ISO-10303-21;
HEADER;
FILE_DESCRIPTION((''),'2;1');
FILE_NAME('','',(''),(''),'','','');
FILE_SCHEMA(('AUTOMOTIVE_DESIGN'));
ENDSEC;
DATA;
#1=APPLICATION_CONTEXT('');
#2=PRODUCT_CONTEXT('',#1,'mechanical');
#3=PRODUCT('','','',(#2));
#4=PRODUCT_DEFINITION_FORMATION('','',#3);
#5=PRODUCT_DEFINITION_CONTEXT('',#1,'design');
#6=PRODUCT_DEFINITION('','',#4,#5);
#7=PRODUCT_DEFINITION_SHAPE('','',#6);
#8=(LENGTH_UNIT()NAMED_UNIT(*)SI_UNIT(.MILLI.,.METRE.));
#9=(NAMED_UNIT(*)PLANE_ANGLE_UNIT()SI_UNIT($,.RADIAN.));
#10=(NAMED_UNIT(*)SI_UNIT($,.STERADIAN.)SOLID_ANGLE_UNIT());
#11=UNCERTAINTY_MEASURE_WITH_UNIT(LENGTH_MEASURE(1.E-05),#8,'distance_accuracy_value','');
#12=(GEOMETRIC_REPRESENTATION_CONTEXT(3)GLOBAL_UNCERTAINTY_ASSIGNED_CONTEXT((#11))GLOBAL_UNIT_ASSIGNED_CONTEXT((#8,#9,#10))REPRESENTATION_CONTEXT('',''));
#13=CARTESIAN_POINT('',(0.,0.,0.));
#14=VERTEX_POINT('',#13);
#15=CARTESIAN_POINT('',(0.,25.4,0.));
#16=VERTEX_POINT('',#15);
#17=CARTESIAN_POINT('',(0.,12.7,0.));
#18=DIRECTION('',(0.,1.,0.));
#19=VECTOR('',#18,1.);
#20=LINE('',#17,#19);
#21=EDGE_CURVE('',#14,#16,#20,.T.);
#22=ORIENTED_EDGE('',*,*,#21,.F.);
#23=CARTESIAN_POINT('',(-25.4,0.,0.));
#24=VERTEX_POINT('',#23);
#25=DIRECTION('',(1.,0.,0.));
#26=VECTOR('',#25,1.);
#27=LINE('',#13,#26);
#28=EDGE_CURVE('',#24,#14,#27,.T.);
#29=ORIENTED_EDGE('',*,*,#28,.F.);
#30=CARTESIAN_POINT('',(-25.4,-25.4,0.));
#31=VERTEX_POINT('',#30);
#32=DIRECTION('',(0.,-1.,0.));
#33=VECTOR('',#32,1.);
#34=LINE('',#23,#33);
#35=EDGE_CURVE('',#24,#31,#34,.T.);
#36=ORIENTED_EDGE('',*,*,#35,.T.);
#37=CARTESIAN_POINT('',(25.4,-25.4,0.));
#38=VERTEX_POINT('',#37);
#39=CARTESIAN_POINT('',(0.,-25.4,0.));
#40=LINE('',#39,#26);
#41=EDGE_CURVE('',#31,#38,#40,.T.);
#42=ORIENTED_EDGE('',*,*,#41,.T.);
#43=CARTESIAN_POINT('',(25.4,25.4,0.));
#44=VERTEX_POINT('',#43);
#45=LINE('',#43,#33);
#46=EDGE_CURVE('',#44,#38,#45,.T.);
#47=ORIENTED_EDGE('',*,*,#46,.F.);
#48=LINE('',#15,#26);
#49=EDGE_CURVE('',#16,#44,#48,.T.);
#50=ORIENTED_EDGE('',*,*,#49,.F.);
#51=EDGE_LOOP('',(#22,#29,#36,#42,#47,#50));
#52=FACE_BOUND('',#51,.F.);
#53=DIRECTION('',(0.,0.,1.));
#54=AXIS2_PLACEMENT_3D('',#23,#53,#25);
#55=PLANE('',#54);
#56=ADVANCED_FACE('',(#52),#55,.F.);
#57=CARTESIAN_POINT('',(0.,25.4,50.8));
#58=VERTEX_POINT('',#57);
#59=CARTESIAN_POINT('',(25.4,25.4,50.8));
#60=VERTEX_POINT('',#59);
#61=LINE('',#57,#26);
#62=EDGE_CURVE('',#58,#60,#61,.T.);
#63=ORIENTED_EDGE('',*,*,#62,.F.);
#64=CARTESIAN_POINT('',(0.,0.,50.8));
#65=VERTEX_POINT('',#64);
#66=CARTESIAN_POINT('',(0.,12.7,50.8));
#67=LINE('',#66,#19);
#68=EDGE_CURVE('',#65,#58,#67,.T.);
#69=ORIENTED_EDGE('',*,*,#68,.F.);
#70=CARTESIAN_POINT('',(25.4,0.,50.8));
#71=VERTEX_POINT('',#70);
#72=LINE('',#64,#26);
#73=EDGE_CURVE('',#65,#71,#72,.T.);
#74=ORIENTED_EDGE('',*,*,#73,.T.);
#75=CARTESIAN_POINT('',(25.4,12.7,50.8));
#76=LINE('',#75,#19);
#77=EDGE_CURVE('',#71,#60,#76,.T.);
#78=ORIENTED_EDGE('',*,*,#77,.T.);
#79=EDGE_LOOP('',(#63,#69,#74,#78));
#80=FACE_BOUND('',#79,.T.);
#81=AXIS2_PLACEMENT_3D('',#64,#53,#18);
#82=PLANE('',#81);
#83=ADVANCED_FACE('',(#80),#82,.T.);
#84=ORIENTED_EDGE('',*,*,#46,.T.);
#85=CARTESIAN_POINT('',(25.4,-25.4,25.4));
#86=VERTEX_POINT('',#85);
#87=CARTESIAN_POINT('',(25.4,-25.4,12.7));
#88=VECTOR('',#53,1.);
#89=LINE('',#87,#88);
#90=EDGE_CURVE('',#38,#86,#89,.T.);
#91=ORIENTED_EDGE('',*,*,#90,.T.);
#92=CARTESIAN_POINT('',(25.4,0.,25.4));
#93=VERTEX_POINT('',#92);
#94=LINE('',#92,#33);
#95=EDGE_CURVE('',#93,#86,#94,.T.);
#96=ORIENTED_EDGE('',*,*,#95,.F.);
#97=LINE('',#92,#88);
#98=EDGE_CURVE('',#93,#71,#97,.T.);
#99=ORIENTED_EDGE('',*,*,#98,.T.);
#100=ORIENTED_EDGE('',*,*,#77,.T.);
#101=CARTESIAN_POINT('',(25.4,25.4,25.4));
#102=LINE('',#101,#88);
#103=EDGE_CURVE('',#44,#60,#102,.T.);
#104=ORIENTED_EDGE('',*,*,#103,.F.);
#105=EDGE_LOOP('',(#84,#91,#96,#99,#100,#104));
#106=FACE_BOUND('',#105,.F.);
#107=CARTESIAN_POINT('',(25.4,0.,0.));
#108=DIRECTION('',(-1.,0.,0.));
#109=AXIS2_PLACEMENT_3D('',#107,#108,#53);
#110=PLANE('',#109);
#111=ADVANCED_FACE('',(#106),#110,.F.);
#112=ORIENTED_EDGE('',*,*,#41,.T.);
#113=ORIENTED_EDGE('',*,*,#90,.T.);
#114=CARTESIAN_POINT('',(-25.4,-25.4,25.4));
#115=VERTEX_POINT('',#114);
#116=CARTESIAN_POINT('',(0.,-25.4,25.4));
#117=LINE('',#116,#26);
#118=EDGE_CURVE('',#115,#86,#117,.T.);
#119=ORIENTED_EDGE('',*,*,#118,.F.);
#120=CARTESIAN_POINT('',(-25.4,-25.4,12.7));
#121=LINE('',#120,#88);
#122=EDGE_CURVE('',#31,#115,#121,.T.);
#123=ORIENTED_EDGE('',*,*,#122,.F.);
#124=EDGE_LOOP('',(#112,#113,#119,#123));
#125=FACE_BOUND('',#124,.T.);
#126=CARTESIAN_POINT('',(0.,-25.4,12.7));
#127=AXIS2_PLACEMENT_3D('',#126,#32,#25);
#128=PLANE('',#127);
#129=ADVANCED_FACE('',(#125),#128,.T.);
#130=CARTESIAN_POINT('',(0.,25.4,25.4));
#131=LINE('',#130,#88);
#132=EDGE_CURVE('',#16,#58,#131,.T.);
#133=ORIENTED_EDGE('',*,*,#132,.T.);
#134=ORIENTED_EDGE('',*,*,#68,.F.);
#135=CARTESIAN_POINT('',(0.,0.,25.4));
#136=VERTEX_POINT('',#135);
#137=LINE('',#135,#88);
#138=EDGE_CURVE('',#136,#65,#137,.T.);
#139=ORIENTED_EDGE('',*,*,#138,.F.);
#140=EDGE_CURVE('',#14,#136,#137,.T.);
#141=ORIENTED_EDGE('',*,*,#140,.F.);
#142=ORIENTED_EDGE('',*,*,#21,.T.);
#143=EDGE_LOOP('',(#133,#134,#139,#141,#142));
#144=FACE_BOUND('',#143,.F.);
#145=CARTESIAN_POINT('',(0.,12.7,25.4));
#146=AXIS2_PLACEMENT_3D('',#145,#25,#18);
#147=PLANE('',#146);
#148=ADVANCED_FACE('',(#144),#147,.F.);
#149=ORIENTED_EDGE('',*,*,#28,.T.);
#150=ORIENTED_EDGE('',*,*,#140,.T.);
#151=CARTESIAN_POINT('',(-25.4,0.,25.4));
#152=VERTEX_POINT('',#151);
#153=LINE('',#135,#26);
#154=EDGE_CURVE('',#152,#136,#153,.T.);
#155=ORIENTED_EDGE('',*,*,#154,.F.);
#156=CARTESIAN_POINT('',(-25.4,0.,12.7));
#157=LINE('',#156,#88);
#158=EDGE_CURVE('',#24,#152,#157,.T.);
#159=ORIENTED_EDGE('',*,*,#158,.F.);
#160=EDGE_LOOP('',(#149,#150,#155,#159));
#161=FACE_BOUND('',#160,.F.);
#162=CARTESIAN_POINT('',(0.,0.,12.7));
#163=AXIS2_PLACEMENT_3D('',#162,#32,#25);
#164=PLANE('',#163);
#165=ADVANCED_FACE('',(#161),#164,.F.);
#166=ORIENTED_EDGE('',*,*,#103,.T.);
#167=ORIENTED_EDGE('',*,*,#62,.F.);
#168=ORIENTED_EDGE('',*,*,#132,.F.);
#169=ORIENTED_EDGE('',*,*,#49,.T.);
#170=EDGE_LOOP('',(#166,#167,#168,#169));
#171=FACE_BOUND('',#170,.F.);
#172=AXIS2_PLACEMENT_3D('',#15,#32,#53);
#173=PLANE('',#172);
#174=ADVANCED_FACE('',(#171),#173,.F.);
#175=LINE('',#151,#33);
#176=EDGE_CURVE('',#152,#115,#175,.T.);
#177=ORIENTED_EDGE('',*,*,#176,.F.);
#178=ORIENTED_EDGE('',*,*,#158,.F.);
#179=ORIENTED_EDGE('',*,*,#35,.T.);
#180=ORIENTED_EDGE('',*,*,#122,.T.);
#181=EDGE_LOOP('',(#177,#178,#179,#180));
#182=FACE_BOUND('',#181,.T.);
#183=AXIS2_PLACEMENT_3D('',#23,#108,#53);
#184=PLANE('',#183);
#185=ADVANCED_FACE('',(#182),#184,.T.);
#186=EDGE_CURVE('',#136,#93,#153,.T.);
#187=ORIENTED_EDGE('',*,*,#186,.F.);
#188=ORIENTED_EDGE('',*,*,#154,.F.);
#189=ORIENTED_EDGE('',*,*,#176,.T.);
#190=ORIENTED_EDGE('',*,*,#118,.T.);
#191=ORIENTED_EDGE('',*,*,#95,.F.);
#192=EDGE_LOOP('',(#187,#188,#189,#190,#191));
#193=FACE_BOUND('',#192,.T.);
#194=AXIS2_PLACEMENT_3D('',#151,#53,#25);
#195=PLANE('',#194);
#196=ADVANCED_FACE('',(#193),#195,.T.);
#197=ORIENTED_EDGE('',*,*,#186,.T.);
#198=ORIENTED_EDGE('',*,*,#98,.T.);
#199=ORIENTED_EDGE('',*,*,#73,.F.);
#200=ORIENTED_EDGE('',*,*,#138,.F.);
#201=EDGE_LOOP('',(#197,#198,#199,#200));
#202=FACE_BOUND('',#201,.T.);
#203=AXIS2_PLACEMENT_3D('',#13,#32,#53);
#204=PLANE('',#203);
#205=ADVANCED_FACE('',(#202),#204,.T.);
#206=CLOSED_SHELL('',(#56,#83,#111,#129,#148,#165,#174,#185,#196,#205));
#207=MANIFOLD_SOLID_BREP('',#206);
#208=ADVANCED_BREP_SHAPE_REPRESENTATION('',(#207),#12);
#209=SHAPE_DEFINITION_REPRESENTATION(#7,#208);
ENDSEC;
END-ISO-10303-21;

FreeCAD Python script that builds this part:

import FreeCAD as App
import Part
import Sketcher

V = App.Vector
Q = App.Units.Quantity


def add_polygon(sketch, points):
    """Adds a closed chain of lines whose ends are joined by coincident constraints."""
    first, n = sketch.GeometryCount, len(points)
    for a, b in zip(points, points[1:] + points[:1]):
        sketch.addGeometry(Part.LineSegment(App.Vector(*a, 0), App.Vector(*b, 0)), False)
    for i in range(n):
        sketch.addConstraint(Sketcher.Constraint("Coincident", first + i, 2, first + (i + 1) % n, 1))

doc = App.newDocument("Part")
body = doc.addObject("PartDesign::Body", "Body")

# Sketch on YZ plane
sketch1 = body.newObject("Sketcher::SketchObject", "Sketch")
sketch1.AttachmentSupport = (doc.getObject("YZ_Plane"), [""])
sketch1.MapMode = "FlatFace"
add_polygon(sketch1, [(0, 51), (0, 0), (25, 0), (25, 51)])  # lines 0-3
sketch1.addConstraint([
    Sketcher.Constraint("Vertical", 0),
    Sketcher.Constraint("Horizontal", 1),
    Sketcher.Constraint("Vertical", 2),
    Sketcher.Constraint("Horizontal", 3),
    Sketcher.Constraint("Coincident", 0, 2, -1, 1),
    Sketcher.Constraint("DistanceX", 1, 1, 1, 2, Q("1 in")),
    Sketcher.Constraint("DistanceY", 0, 2, 0, 1, Q("2 in")),
])
pad1 = body.newObject("PartDesign::Pad", "Pad")
pad1.Profile = sketch1
pad1.Length = Q("1 in")

# Sketch on XZ plane
sketch2 = body.newObject("Sketcher::SketchObject", "Sketch001")
sketch2.AttachmentSupport = (doc.getObject("XZ_Plane"), [""])
sketch2.MapMode = "FlatFace"
add_polygon(sketch2, [(-25, 25), (-25, 0), (25, 0), (25, 25)])  # lines 0-3
sketch2.addConstraint([
    Sketcher.Constraint("Vertical", 0),
    Sketcher.Constraint("Horizontal", 1),
    Sketcher.Constraint("Vertical", 2),
    Sketcher.Constraint("Horizontal", 3),
    Sketcher.Constraint("Symmetric", 0, 2, 1, 2, -1, 1),
    Sketcher.Constraint("DistanceX", 1, 1, 1, 2, Q("2 in")),
    Sketcher.Constraint("DistanceY", 0, 2, 0, 1, Q("1 in")),
])
pad2 = body.newObject("PartDesign::Pad", "Pad001")
pad2.Profile = sketch2
pad2.Length = Q("1 in")

doc.recompute()
